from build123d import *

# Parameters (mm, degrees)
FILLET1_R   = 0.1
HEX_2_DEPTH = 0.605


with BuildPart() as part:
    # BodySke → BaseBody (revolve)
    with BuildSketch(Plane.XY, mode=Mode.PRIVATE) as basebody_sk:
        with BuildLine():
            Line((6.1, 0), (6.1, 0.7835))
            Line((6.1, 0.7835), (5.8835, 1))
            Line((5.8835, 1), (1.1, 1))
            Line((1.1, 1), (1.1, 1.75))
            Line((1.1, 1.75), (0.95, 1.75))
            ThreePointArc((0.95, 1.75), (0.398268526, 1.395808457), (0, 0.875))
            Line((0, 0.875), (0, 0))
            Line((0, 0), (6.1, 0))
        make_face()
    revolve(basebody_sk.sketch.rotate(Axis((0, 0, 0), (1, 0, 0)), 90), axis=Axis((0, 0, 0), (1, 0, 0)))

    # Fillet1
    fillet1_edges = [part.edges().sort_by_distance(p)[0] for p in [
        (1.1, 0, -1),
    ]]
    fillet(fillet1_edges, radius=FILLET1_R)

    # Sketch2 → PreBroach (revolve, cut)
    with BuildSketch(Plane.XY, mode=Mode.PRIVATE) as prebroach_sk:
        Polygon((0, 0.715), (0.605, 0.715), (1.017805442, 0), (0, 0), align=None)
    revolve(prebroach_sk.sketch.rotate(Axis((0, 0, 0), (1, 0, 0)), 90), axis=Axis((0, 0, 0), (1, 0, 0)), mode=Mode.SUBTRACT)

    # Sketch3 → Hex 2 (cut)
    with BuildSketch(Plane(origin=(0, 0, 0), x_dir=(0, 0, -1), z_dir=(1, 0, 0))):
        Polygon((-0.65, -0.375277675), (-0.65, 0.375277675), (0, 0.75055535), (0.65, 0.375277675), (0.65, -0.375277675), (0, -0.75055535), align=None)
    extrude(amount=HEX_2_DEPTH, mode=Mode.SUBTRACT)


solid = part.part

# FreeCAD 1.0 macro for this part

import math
import FreeCAD as App
import Part
import Sketcher
Q = App.Units.Quantity


def edges_at(feature, points):
    """Names of the edges that pass closest to the given points."""
    edges = feature.Shape.Edges
    near = lambda p: min(range(len(edges)), key=lambda i: edges[i].distToShape(Part.Vertex(*p))[0])
    return sorted({f"Edge{near(p) + 1}" for p in points})


def add_polygon(sketch, points):
    """Adds a closed chain of lines whose ends are joined by coincident constraints."""
    first, n = sketch.GeometryCount, len(points)
    for a, b in zip(points, points[1:] + points[:1]):
        sketch.addGeometry(Part.LineSegment(App.Vector(*a, 0), App.Vector(*b, 0)), False)
    for i in range(n):
        sketch.addConstraint(Sketcher.Constraint("Coincident", first + i, 2, first + (i + 1) % n, 1))

doc = App.newDocument("Part")
body = doc.addObject("PartDesign::Body", "Body")

# Sketch on XY plane
sketch1 = body.newObject("Sketcher::SketchObject", "Sketch")
sketch1.AttachmentSupport = (doc.getObject("XY_Plane"), [""])
sketch1.MapMode = "FlatFace"
sketch1.addGeometry([
    Part.LineSegment(App.Vector(6.1, 0, 0), App.Vector(6.1, 0.7835, 0)),  # 0
    Part.LineSegment(App.Vector(6.1, 0.7835, 0), App.Vector(5.8835, 1, 0)),  # 1
    Part.LineSegment(App.Vector(5.8835, 1, 0), App.Vector(1.1, 1, 0)),  # 2
    Part.LineSegment(App.Vector(1.1, 1, 0), App.Vector(1.1, 1.75, 0)),  # 3
    Part.LineSegment(App.Vector(1.1, 1.75, 0), App.Vector(0.95, 1.75, 0)),  # 4
    Part.ArcOfCircle(Part.Circle(App.Vector(1.683882, 0, 0), App.Vector(0, 0, 1), 1.897652), math.radians(112.751272), math.radians(152.542134)),  # 5
    Part.LineSegment(App.Vector(0, 0.875, 0), App.Vector(0, 0, 0)),  # 6
    Part.LineSegment(App.Vector(0, 0, 0), App.Vector(6.1, 0, 0)),  # 7
], False)
sketch1.addConstraint([
    Sketcher.Constraint("Coincident", 0, 2, 1, 1),
    Sketcher.Constraint("Coincident", 1, 2, 2, 1),
    Sketcher.Constraint("Coincident", 2, 2, 3, 1),
    Sketcher.Constraint("Coincident", 3, 2, 4, 1),
    Sketcher.Constraint("Coincident", 4, 2, 5, 1),
    Sketcher.Constraint("Coincident", 5, 2, 6, 1),
    Sketcher.Constraint("Coincident", 6, 2, 7, 1),
    Sketcher.Constraint("Coincident", 7, 2, 0, 1),
    Sketcher.Constraint("Vertical", 0),
    Sketcher.Constraint("Horizontal", 2),
    Sketcher.Constraint("Vertical", 3),
    Sketcher.Constraint("Horizontal", 4),
    Sketcher.Constraint("Vertical", 6),
    Sketcher.Constraint("Horizontal", 7),
    Sketcher.Constraint("Coincident", 6, 2, -1, 1),
    Sketcher.Constraint("PointOnObject", 5, 3, -1),
    Sketcher.Constraint("Angle", 1, Q("135 deg")),
    Sketcher.Constraint("DistanceX", 7, 1, 7, 2, 6.1),
    Sketcher.Constraint("DistanceY", -1, 1, 1, 2, 1.0),
    Sketcher.Constraint("DistanceX", 2, 2, 0, 2, 5.0),
    Sketcher.Constraint("DistanceX", 4, 2, 4, 1, 0.15),
    Sketcher.Constraint("DistanceY", 3, 1, 3, 2, 0.75),
    Sketcher.Constraint("DistanceY", 6, 2, 6, 1, 0.875),
    Sketcher.Constraint("DistanceX", 2, 2, 2, 1, 4.7835),
])
revolution = body.newObject("PartDesign::Revolution", "Revolution")
revolution.Profile = sketch1
revolution.ReferenceAxis = (sketch1, ["H_Axis"])
revolution.Angle = 360
doc.recompute()

fillet = body.newObject("PartDesign::Fillet", "Fillet")
fillet.Base = (revolution, edges_at(revolution, [(1.1, 0, -1)]))
fillet.Radius = 0.1

# Sketch on XY plane
sketch2 = body.newObject("Sketcher::SketchObject", "Sketch001")
sketch2.AttachmentSupport = (doc.getObject("XY_Plane"), [""])
sketch2.MapMode = "FlatFace"
add_polygon(sketch2, [(0.605, 0.715), (0, 0.715), (0, 0), (1.017805, 0)])  # lines 0-3
sketch2.addConstraint([
    Sketcher.Constraint("Horizontal", 0),
    Sketcher.Constraint("Vertical", 1),
    Sketcher.Constraint("Horizontal", 2),
    Sketcher.Constraint("Coincident", 1, 2, -1, 1),
    Sketcher.Constraint("Angle", 3, Q("120 deg")),
    Sketcher.Constraint("DistanceX", 0, 2, 0, 1, 0.605),
    Sketcher.Constraint("DistanceY", 1, 2, 1, 1, 0.715),
])
groove = body.newObject("PartDesign::Groove", "Groove")
groove.Profile = sketch2
groove.ReferenceAxis = (sketch2, ["H_Axis"])
groove.Angle = 360

# Sketch on YZ plane
sketch3 = body.newObject("Sketcher::SketchObject", "Sketch002")
sketch3.AttachmentSupport = (doc.getObject("YZ_Plane"), [""])
sketch3.MapMode = "FlatFace"
add_polygon(sketch3, [(0.375278, 0.65), (-0.375278, 0.65), (-0.750555, 0), (-0.375278, -0.65), (0.375278, -0.65), (0.750555, 0)])  # lines 0-5
sketch3.addConstraint([
    Sketcher.Constraint("Horizontal", 0),
    Sketcher.Constraint("Horizontal", 3),
    Sketcher.Constraint("Symmetric", 0, 2, 3, 2, -1, 1),
    Sketcher.Constraint("Symmetric", 1, 2, 4, 2, -1, 1),
    Sketcher.Constraint("PointOnObject", 1, 2, -1),
    Sketcher.Constraint("Parallel", 2, 5),
    Sketcher.Constraint("Vertical", 0, 2, 2, 2),
    Sketcher.Constraint("Angle", 1, Q("-120 deg")),
    Sketcher.Constraint("DistanceY", 2, 2, 0, 2, 1.3),
    Sketcher.Constraint("DistanceX", 0, 2, 0, 1, 0.750555),
])
pocket1 = body.newObject("PartDesign::Pocket", "Pocket")
pocket1.Profile = sketch3
pocket1.Length = 0.605
pocket1.Reversed = True

doc.recompute()
